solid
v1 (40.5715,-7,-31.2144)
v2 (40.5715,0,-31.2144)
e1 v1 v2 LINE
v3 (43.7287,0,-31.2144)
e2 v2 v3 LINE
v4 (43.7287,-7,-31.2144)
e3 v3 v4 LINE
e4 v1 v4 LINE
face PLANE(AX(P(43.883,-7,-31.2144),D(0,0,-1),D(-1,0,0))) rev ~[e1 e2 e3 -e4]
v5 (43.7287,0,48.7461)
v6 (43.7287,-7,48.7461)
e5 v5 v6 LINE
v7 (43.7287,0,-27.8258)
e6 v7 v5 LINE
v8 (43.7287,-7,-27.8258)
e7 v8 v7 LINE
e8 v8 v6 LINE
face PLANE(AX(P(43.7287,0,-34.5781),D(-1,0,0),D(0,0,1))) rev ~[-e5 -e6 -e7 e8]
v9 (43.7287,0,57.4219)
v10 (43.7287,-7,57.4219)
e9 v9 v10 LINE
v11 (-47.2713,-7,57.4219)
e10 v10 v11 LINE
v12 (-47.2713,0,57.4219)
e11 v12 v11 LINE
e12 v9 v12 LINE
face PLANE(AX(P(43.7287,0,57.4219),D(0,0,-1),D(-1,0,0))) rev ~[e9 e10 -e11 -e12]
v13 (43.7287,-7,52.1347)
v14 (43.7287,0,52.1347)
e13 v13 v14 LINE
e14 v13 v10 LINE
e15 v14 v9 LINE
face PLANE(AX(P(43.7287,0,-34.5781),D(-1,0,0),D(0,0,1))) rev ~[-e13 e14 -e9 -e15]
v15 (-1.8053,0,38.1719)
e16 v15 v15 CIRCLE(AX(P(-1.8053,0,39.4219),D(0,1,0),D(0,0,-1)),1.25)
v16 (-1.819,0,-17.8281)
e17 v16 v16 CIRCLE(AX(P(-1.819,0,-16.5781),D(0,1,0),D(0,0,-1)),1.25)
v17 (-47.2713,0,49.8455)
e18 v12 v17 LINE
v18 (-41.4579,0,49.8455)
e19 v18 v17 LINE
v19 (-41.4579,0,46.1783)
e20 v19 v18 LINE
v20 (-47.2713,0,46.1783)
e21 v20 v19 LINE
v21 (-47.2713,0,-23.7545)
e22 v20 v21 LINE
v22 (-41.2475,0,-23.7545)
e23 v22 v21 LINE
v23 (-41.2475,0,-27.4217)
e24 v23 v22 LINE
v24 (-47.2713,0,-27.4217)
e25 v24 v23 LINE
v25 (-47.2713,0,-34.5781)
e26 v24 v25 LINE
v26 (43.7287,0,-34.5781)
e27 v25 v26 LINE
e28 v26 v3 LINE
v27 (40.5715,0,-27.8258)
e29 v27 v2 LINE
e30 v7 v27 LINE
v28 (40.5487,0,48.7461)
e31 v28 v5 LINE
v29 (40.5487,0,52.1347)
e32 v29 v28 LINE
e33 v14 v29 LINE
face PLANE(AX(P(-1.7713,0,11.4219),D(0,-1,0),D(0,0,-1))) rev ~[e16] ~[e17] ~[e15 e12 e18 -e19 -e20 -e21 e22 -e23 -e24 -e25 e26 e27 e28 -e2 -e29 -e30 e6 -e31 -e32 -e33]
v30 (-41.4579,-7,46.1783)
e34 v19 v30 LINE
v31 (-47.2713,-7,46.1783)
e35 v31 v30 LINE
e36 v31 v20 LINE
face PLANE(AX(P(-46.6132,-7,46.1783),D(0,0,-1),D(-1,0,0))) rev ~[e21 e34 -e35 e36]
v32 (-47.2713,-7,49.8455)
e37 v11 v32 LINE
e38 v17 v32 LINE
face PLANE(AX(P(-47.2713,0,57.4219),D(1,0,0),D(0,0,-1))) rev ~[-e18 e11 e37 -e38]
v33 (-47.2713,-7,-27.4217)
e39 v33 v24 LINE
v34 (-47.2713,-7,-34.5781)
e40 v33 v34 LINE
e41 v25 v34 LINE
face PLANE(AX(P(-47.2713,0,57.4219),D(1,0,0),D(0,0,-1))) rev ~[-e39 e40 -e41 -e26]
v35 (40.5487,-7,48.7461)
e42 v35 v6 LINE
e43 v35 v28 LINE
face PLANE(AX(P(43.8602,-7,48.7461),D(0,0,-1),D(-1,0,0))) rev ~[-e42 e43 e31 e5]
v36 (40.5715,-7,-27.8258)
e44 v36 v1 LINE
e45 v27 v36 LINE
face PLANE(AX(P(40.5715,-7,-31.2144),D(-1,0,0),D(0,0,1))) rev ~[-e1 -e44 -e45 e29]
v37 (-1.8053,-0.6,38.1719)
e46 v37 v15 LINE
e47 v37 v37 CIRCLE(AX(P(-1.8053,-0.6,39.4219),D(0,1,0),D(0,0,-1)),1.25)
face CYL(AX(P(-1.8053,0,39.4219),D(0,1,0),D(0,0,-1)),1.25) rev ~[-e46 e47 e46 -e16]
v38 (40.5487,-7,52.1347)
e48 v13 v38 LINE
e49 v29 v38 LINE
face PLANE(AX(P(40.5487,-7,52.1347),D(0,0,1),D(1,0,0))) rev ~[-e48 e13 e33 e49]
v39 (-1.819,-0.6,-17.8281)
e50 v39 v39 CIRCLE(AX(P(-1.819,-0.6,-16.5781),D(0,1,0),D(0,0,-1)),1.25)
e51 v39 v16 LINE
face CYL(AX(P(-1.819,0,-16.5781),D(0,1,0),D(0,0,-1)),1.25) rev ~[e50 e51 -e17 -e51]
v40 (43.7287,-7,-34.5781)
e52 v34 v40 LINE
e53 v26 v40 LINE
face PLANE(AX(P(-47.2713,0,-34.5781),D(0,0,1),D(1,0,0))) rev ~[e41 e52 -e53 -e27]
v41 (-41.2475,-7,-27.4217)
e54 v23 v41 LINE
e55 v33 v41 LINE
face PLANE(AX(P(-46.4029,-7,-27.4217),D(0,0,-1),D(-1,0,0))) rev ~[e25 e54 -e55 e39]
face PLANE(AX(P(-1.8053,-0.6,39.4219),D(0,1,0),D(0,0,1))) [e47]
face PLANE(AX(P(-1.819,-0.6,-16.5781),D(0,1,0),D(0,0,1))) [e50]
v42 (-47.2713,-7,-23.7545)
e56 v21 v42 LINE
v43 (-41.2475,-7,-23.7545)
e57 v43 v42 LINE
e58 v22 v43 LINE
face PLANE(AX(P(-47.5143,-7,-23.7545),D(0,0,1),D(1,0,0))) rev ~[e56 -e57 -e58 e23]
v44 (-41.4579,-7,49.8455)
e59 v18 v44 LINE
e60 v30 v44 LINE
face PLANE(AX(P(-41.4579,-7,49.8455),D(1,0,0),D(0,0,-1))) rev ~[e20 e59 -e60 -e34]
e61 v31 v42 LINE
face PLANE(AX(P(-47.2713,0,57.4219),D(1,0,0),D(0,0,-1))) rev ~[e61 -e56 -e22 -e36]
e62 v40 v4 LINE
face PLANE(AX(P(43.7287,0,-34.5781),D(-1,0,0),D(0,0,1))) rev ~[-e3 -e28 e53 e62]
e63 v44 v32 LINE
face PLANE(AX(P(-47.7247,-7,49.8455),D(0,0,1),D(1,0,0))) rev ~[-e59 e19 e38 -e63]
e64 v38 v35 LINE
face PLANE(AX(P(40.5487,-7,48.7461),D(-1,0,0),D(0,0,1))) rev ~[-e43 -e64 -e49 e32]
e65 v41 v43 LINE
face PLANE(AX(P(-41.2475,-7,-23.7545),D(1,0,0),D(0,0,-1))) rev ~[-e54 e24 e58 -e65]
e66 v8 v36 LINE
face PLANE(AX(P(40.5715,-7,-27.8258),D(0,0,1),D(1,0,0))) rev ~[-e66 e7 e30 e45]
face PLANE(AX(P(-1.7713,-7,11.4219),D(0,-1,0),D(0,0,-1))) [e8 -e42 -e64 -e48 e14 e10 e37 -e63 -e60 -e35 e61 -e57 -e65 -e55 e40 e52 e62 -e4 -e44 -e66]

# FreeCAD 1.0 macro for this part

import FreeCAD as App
import Part
import Sketcher
from FreeCAD import Vector
Q = App.Units.Quantity

doc = App.newDocument("Part")
body = doc.addObject("PartDesign::Body", "Body")

# Sketch on XZ plane
sketch1 = doc.addObject("Sketcher::SketchObject", "Sketch")
body.addObject(sketch1)
sketch1.AttachmentSupport = (doc.XZ_Plane, [""])
sketch1.MapMode = "FlatFace"
sketch1.addGeometry([
    Part.LineSegment(Vector(-47, 57, 0), Vector(-47, -35, 0)),
    Part.LineSegment(Vector(-47, -35, 0), Vector(44, -35, 0)),
    Part.LineSegment(Vector(44, -35, 0), Vector(44, 57, 0)),
    Part.LineSegment(Vector(44, 57, 0), Vector(-47, 57, 0)),
], False)
sketch1.addConstraint([
    Sketcher.Constraint("Coincident", 0, 2, 1, 1),
    Sketcher.Constraint("Coincident", 1, 2, 2, 1),
    Sketcher.Constraint("Coincident", 2, 2, 3, 1),
    Sketcher.Constraint("Coincident", 3, 2, 0, 1),
    Sketcher.Constraint("Vertical", 0),
    Sketcher.Constraint("Horizontal", 1),
    Sketcher.Constraint("Vertical", 2),
    Sketcher.Constraint("Horizontal", 3),
    Sketcher.Constraint("DistanceX", 1, 1, 1, 2, Q("91 mm")),
    Sketcher.Constraint("DistanceY", 0, 2, 0, 1, Q("92 mm")),
    Sketcher.Constraint("DistanceY", 0, 2, -1, 1, Q("34.578 mm")),
    Sketcher.Constraint("DistanceX", 0, 2, -1, 1, Q("47.2713 mm")),
])
pad1 = doc.addObject("PartDesign::Pad", "Pad")
body.addObject(pad1)
pad1.Profile = sketch1
pad1.Length = 7

# Sketch on XZ plane
sketch2 = doc.addObject("Sketcher::SketchObject", "Sketch001")
body.addObject(sketch2)
sketch2.AttachmentSupport = (doc.XZ_Plane, [""])
sketch2.MapMode = "FlatFace"
sketch2.AttachmentOffset = App.Placement(Vector(0, 0, 7), App.Rotation())
sketch2.addGeometry([
    Part.Circle(Vector(-43.2, -25.6, 0), Vector(0, 0, 1), 1.6),
    Part.Circle(Vector(42.3, 50.5, 0), Vector(0, 0, 1), 1.6),
    Part.Circle(Vector(42.3, -29.5, 0), Vector(0, 0, 1), 1.6),
    Part.Circle(Vector(-43.5, 48, 0), Vector(0, 0, 1), 1.6),
], False)
sketch2.addConstraint([
    Sketcher.Constraint("Equal", 0, 1),
    Sketcher.Constraint("Equal", 1, 2),
    Sketcher.Constraint("Equal", 2, 3),
    Sketcher.Constraint("Diameter", 0, Q("3.18 mm")),
    Sketcher.Constraint("DistanceX", 3, 3, 0, 3, Q("0.3 mm")),
    Sketcher.Constraint("DistanceY", 0, 3, 3, 3, Q("73.6 mm")),
    Sketcher.Constraint("DistanceX", 0, 3, 1, 3, Q("85.48 mm")),
    Sketcher.Constraint("DistanceY", 0, 3, 1, 3, Q("76.04 mm")),
    Sketcher.Constraint("DistanceX", 1, 3, 2, 3, Q("0.03 mm")),
    Sketcher.Constraint("DistanceY", 2, 3, 1, 3, Q("79.99 mm")),
    Sketcher.Constraint("DistanceY", 0, 3, -1, 1, Q("25.588 mm")),
    Sketcher.Constraint("DistanceX", 0, 3, -1, 1, Q("43.2212 mm")),
])
pocket1 = doc.addObject("PartDesign::Pocket", "Pocket")
body.addObject(pocket1)
pocket1.Profile = sketch2
pocket1.Length = 7

# Sketch on XZ plane
sketch3 = doc.addObject("Sketcher::SketchObject", "Sketch002")
body.addObject(sketch3)
sketch3.AttachmentSupport = (doc.XZ_Plane, [""])
sketch3.MapMode = "FlatFace"
sketch3.addGeometry([
    Part.Circle(Vector(-1.8, 39.4, 0), Vector(0, 0, 1), 1.2),
    Part.Circle(Vector(-1.8, -16.6, 0), Vector(0, 0, 1), 1.2),
], False)
sketch3.addConstraint([
    Sketcher.Constraint("Equal", 0, 1),
    Sketcher.Constraint("Diameter", 0, Q("2.5 mm")),
    Sketcher.Constraint("DistanceY", 1, 3, 0, 3, Q("56 mm")),
    Sketcher.Constraint("DistanceY", -1, 1, 0, 3, Q("39.422 mm")),
    Sketcher.Constraint("DistanceX", 1, 3, -1, 1, Q("1.819 mm")),
    Sketcher.Constraint("DistanceX", 0, 3, -1, 1, Q("1.8053 mm")),
])
pocket2 = doc.addObject("PartDesign::Pocket", "Pocket001")
body.addObject(pocket2)
pocket2.Profile = sketch3
pocket2.Type = "TwoLengths"
pocket2.Length = 0.6
pocket2.Length2 = 0.5701
pocket2.Reversed = True

# Sketch on XZ plane
sketch4 = doc.addObject("Sketcher::SketchObject", "Sketch003")
body.addObject(sketch4)
sketch4.AttachmentSupport = (doc.XZ_Plane, [""])
sketch4.MapMode = "FlatFace"
sketch4.AttachmentOffset = App.Placement(Vector(0, 0, 7), App.Rotation())
sketch4.addGeometry([
    Part.LineSegment(Vector(43.9, -31.2, 0), Vector(43.9, -27.8, 0)),
    Part.LineSegment(Vector(43.9, -27.8, 0), Vector(40.6, -27.8, 0)),
    Part.LineSegment(Vector(40.6, -27.8, 0), Vector(40.6, -31.2, 0)),
    Part.LineSegment(Vector(40.6, -31.2, 0), Vector(43.9, -31.2, 0)),
], False)
sketch4.addConstraint([
    Sketcher.Constraint("Coincident", 0, 2, 1, 1),
    Sketcher.Constraint("Coincident", 1, 2, 2, 1),
    Sketcher.Constraint("Coincident", 2, 2, 3, 1),
    Sketcher.Constraint("Coincident", 3, 2, 0, 1),
    Sketcher.Constraint("Vertical", 0),
    Sketcher.Constraint("Horizontal", 1),
    Sketcher.Constraint("Vertical", 2),
    Sketcher.Constraint("Horizontal", 3),
    Sketcher.Constraint("DistanceX", 1, 2, 1, 1, Q("3.3115 mm")),
    Sketcher.Constraint("DistanceY", 0, 1, 0, 2, Q("3.3886 mm")),
    Sketcher.Constraint("DistanceX", -1, 1, 0, 2, Q("43.883 mm")),
    Sketcher.Constraint("DistanceY", 0, 2, -1, 1, Q("27.8258 mm")),
])
pocket3 = doc.addObject("PartDesign::Pocket", "Pocket002")
body.addObject(pocket3)
pocket3.Profile = sketch4
pocket3.Length = 21.8281
pocket3.Midplane = True

# Sketch on XZ plane
sketch5 = doc.addObject("Sketcher::SketchObject", "Sketch004")
body.addObject(sketch5)
sketch5.AttachmentSupport = (doc.XZ_Plane, [""])
sketch5.MapMode = "FlatFace"
sketch5.AttachmentOffset = App.Placement(Vector(0, 0, 7), App.Rotation())
sketch5.addGeometry([
    Part.LineSegment(Vector(43.9, 48.7, 0), Vector(43.9, 52.1, 0)),
    Part.LineSegment(Vector(43.9, 52.1, 0), Vector(40.5, 52.1, 0)),
    Part.LineSegment(Vector(40.5, 52.1, 0), Vector(40.5, 48.7, 0)),
    Part.LineSegment(Vector(40.5, 48.7, 0), Vector(43.9, 48.7, 0)),
], False)
sketch5.addConstraint([
    Sketcher.Constraint("Coincident", 0, 2, 1, 1),
    Sketcher.Constraint("Coincident", 1, 2, 2, 1),
    Sketcher.Constraint("Coincident", 2, 2, 3, 1),
    Sketcher.Constraint("Coincident", 3, 2, 0, 1),
    Sketcher.Constraint("Vertical", 0),
    Sketcher.Constraint("Horizontal", 1),
    Sketcher.Constraint("Vertical", 2),
    Sketcher.Constraint("Horizontal", 3),
    Sketcher.Constraint("DistanceX", 1, 2, 1, 1, Q("3.3115 mm")),
    Sketcher.Constraint("DistanceY", 0, 1, 0, 2, Q("3.3886 mm")),
    Sketcher.Constraint("DistanceY", -1, 1, 2, 2, Q("48.746 mm")),
    Sketcher.Constraint("DistanceX", -1, 1, 0, 2, Q("43.8602 mm")),
])
pocket4 = doc.addObject("PartDesign::Pocket", "Pocket003")
body.addObject(pocket4)
pocket4.Profile = sketch5
pocket4.Length = 18.958
pocket4.Midplane = True

# Sketch on XZ plane
sketch6 = doc.addObject("Sketcher::SketchObject", "Sketch005")
body.addObject(sketch6)
sketch6.AttachmentSupport = (doc.XZ_Plane, [""])
sketch6.MapMode = "FlatFace"
sketch6.AttachmentOffset = App.Placement(Vector(0, 0, 7), App.Rotation())
sketch6.addGeometry([
    Part.LineSegment(Vector(-47.5, -27.4, 0), Vector(-41.2, -27.4, 0)),  # 0
    Part.LineSegment(Vector(-41.2, -27.4, 0), Vector(-41.2, -23.8, 0)),  # 1
    Part.LineSegment(Vector(-41.2, -23.8, 0), Vector(-47.5, -23.8, 0)),  # 2
    Part.LineSegment(Vector(-47.5, -23.8, 0), Vector(-47.5, -27.4, 0)),  # 3
    Part.LineSegment(Vector(-47.7, 46.2, 0), Vector(-41.5, 46.2, 0)),  # 4
    Part.LineSegment(Vector(-41.5, 46.2, 0), Vector(-41.5, 49.8, 0)),  # 5
    Part.LineSegment(Vector(-41.5, 49.8, 0), Vector(-47.7, 49.8, 0)),  # 6
    Part.LineSegment(Vector(-47.7, 49.8, 0), Vector(-47.7, 46.2, 0)),  # 7
], False)
sketch6.addConstraint([
    Sketcher.Constraint("Coincident", 0, 2, 1, 1),
    Sketcher.Constraint("Coincident", 1, 2, 2, 1),
    Sketcher.Constraint("Coincident", 2, 2, 3, 1),
    Sketcher.Constraint("Coincident", 3, 2, 0, 1),
    Sketcher.Constraint("Coincident", 4, 2, 5, 1),
    Sketcher.Constraint("Coincident", 5, 2, 6, 1),
    Sketcher.Constraint("Coincident", 6, 2, 7, 1),
    Sketcher.Constraint("Coincident", 7, 2, 4, 1),
    Sketcher.Constraint("Horizontal", 0),
    Sketcher.Constraint("Vertical", 1),
    Sketcher.Constraint("Horizontal", 2),
    Sketcher.Constraint("Vertical", 3),
    Sketcher.Constraint("Horizontal", 4),
    Sketcher.Constraint("Vertical", 5),
    Sketcher.Constraint("Horizontal", 6),
    Sketcher.Constraint("Vertical", 7),
    Sketcher.Constraint("Equal", 2, 4),
    Sketcher.Constraint("Equal", 3, 5),
    Sketcher.Constraint("DistanceY", 0, 2, 4, 2, Q("73.6 mm")),
    Sketcher.Constraint("DistanceX", 0, 1, 0, 2, Q("6.2668 mm")),
    Sketcher.Constraint("DistanceY", 1, 1, 1, 2, Q("3.6672 mm")),
    Sketcher.Constraint("DistanceX", 4, 2, -1, 1, Q("41.458 mm")),
    Sketcher.Constraint("DistanceX", 0, 2, -1, 1, Q("41.2475 mm")),
    Sketcher.Constraint("DistanceY", 0, 2, -1, 1, Q("27.4217 mm")),
])
pocket5 = doc.addObject("PartDesign::Pocket", "Pocket004")
body.addObject(pocket5)
pocket5.Profile = sketch6
pocket5.Length = 46.9904
pocket5.Midplane = True

doc.recompute()
